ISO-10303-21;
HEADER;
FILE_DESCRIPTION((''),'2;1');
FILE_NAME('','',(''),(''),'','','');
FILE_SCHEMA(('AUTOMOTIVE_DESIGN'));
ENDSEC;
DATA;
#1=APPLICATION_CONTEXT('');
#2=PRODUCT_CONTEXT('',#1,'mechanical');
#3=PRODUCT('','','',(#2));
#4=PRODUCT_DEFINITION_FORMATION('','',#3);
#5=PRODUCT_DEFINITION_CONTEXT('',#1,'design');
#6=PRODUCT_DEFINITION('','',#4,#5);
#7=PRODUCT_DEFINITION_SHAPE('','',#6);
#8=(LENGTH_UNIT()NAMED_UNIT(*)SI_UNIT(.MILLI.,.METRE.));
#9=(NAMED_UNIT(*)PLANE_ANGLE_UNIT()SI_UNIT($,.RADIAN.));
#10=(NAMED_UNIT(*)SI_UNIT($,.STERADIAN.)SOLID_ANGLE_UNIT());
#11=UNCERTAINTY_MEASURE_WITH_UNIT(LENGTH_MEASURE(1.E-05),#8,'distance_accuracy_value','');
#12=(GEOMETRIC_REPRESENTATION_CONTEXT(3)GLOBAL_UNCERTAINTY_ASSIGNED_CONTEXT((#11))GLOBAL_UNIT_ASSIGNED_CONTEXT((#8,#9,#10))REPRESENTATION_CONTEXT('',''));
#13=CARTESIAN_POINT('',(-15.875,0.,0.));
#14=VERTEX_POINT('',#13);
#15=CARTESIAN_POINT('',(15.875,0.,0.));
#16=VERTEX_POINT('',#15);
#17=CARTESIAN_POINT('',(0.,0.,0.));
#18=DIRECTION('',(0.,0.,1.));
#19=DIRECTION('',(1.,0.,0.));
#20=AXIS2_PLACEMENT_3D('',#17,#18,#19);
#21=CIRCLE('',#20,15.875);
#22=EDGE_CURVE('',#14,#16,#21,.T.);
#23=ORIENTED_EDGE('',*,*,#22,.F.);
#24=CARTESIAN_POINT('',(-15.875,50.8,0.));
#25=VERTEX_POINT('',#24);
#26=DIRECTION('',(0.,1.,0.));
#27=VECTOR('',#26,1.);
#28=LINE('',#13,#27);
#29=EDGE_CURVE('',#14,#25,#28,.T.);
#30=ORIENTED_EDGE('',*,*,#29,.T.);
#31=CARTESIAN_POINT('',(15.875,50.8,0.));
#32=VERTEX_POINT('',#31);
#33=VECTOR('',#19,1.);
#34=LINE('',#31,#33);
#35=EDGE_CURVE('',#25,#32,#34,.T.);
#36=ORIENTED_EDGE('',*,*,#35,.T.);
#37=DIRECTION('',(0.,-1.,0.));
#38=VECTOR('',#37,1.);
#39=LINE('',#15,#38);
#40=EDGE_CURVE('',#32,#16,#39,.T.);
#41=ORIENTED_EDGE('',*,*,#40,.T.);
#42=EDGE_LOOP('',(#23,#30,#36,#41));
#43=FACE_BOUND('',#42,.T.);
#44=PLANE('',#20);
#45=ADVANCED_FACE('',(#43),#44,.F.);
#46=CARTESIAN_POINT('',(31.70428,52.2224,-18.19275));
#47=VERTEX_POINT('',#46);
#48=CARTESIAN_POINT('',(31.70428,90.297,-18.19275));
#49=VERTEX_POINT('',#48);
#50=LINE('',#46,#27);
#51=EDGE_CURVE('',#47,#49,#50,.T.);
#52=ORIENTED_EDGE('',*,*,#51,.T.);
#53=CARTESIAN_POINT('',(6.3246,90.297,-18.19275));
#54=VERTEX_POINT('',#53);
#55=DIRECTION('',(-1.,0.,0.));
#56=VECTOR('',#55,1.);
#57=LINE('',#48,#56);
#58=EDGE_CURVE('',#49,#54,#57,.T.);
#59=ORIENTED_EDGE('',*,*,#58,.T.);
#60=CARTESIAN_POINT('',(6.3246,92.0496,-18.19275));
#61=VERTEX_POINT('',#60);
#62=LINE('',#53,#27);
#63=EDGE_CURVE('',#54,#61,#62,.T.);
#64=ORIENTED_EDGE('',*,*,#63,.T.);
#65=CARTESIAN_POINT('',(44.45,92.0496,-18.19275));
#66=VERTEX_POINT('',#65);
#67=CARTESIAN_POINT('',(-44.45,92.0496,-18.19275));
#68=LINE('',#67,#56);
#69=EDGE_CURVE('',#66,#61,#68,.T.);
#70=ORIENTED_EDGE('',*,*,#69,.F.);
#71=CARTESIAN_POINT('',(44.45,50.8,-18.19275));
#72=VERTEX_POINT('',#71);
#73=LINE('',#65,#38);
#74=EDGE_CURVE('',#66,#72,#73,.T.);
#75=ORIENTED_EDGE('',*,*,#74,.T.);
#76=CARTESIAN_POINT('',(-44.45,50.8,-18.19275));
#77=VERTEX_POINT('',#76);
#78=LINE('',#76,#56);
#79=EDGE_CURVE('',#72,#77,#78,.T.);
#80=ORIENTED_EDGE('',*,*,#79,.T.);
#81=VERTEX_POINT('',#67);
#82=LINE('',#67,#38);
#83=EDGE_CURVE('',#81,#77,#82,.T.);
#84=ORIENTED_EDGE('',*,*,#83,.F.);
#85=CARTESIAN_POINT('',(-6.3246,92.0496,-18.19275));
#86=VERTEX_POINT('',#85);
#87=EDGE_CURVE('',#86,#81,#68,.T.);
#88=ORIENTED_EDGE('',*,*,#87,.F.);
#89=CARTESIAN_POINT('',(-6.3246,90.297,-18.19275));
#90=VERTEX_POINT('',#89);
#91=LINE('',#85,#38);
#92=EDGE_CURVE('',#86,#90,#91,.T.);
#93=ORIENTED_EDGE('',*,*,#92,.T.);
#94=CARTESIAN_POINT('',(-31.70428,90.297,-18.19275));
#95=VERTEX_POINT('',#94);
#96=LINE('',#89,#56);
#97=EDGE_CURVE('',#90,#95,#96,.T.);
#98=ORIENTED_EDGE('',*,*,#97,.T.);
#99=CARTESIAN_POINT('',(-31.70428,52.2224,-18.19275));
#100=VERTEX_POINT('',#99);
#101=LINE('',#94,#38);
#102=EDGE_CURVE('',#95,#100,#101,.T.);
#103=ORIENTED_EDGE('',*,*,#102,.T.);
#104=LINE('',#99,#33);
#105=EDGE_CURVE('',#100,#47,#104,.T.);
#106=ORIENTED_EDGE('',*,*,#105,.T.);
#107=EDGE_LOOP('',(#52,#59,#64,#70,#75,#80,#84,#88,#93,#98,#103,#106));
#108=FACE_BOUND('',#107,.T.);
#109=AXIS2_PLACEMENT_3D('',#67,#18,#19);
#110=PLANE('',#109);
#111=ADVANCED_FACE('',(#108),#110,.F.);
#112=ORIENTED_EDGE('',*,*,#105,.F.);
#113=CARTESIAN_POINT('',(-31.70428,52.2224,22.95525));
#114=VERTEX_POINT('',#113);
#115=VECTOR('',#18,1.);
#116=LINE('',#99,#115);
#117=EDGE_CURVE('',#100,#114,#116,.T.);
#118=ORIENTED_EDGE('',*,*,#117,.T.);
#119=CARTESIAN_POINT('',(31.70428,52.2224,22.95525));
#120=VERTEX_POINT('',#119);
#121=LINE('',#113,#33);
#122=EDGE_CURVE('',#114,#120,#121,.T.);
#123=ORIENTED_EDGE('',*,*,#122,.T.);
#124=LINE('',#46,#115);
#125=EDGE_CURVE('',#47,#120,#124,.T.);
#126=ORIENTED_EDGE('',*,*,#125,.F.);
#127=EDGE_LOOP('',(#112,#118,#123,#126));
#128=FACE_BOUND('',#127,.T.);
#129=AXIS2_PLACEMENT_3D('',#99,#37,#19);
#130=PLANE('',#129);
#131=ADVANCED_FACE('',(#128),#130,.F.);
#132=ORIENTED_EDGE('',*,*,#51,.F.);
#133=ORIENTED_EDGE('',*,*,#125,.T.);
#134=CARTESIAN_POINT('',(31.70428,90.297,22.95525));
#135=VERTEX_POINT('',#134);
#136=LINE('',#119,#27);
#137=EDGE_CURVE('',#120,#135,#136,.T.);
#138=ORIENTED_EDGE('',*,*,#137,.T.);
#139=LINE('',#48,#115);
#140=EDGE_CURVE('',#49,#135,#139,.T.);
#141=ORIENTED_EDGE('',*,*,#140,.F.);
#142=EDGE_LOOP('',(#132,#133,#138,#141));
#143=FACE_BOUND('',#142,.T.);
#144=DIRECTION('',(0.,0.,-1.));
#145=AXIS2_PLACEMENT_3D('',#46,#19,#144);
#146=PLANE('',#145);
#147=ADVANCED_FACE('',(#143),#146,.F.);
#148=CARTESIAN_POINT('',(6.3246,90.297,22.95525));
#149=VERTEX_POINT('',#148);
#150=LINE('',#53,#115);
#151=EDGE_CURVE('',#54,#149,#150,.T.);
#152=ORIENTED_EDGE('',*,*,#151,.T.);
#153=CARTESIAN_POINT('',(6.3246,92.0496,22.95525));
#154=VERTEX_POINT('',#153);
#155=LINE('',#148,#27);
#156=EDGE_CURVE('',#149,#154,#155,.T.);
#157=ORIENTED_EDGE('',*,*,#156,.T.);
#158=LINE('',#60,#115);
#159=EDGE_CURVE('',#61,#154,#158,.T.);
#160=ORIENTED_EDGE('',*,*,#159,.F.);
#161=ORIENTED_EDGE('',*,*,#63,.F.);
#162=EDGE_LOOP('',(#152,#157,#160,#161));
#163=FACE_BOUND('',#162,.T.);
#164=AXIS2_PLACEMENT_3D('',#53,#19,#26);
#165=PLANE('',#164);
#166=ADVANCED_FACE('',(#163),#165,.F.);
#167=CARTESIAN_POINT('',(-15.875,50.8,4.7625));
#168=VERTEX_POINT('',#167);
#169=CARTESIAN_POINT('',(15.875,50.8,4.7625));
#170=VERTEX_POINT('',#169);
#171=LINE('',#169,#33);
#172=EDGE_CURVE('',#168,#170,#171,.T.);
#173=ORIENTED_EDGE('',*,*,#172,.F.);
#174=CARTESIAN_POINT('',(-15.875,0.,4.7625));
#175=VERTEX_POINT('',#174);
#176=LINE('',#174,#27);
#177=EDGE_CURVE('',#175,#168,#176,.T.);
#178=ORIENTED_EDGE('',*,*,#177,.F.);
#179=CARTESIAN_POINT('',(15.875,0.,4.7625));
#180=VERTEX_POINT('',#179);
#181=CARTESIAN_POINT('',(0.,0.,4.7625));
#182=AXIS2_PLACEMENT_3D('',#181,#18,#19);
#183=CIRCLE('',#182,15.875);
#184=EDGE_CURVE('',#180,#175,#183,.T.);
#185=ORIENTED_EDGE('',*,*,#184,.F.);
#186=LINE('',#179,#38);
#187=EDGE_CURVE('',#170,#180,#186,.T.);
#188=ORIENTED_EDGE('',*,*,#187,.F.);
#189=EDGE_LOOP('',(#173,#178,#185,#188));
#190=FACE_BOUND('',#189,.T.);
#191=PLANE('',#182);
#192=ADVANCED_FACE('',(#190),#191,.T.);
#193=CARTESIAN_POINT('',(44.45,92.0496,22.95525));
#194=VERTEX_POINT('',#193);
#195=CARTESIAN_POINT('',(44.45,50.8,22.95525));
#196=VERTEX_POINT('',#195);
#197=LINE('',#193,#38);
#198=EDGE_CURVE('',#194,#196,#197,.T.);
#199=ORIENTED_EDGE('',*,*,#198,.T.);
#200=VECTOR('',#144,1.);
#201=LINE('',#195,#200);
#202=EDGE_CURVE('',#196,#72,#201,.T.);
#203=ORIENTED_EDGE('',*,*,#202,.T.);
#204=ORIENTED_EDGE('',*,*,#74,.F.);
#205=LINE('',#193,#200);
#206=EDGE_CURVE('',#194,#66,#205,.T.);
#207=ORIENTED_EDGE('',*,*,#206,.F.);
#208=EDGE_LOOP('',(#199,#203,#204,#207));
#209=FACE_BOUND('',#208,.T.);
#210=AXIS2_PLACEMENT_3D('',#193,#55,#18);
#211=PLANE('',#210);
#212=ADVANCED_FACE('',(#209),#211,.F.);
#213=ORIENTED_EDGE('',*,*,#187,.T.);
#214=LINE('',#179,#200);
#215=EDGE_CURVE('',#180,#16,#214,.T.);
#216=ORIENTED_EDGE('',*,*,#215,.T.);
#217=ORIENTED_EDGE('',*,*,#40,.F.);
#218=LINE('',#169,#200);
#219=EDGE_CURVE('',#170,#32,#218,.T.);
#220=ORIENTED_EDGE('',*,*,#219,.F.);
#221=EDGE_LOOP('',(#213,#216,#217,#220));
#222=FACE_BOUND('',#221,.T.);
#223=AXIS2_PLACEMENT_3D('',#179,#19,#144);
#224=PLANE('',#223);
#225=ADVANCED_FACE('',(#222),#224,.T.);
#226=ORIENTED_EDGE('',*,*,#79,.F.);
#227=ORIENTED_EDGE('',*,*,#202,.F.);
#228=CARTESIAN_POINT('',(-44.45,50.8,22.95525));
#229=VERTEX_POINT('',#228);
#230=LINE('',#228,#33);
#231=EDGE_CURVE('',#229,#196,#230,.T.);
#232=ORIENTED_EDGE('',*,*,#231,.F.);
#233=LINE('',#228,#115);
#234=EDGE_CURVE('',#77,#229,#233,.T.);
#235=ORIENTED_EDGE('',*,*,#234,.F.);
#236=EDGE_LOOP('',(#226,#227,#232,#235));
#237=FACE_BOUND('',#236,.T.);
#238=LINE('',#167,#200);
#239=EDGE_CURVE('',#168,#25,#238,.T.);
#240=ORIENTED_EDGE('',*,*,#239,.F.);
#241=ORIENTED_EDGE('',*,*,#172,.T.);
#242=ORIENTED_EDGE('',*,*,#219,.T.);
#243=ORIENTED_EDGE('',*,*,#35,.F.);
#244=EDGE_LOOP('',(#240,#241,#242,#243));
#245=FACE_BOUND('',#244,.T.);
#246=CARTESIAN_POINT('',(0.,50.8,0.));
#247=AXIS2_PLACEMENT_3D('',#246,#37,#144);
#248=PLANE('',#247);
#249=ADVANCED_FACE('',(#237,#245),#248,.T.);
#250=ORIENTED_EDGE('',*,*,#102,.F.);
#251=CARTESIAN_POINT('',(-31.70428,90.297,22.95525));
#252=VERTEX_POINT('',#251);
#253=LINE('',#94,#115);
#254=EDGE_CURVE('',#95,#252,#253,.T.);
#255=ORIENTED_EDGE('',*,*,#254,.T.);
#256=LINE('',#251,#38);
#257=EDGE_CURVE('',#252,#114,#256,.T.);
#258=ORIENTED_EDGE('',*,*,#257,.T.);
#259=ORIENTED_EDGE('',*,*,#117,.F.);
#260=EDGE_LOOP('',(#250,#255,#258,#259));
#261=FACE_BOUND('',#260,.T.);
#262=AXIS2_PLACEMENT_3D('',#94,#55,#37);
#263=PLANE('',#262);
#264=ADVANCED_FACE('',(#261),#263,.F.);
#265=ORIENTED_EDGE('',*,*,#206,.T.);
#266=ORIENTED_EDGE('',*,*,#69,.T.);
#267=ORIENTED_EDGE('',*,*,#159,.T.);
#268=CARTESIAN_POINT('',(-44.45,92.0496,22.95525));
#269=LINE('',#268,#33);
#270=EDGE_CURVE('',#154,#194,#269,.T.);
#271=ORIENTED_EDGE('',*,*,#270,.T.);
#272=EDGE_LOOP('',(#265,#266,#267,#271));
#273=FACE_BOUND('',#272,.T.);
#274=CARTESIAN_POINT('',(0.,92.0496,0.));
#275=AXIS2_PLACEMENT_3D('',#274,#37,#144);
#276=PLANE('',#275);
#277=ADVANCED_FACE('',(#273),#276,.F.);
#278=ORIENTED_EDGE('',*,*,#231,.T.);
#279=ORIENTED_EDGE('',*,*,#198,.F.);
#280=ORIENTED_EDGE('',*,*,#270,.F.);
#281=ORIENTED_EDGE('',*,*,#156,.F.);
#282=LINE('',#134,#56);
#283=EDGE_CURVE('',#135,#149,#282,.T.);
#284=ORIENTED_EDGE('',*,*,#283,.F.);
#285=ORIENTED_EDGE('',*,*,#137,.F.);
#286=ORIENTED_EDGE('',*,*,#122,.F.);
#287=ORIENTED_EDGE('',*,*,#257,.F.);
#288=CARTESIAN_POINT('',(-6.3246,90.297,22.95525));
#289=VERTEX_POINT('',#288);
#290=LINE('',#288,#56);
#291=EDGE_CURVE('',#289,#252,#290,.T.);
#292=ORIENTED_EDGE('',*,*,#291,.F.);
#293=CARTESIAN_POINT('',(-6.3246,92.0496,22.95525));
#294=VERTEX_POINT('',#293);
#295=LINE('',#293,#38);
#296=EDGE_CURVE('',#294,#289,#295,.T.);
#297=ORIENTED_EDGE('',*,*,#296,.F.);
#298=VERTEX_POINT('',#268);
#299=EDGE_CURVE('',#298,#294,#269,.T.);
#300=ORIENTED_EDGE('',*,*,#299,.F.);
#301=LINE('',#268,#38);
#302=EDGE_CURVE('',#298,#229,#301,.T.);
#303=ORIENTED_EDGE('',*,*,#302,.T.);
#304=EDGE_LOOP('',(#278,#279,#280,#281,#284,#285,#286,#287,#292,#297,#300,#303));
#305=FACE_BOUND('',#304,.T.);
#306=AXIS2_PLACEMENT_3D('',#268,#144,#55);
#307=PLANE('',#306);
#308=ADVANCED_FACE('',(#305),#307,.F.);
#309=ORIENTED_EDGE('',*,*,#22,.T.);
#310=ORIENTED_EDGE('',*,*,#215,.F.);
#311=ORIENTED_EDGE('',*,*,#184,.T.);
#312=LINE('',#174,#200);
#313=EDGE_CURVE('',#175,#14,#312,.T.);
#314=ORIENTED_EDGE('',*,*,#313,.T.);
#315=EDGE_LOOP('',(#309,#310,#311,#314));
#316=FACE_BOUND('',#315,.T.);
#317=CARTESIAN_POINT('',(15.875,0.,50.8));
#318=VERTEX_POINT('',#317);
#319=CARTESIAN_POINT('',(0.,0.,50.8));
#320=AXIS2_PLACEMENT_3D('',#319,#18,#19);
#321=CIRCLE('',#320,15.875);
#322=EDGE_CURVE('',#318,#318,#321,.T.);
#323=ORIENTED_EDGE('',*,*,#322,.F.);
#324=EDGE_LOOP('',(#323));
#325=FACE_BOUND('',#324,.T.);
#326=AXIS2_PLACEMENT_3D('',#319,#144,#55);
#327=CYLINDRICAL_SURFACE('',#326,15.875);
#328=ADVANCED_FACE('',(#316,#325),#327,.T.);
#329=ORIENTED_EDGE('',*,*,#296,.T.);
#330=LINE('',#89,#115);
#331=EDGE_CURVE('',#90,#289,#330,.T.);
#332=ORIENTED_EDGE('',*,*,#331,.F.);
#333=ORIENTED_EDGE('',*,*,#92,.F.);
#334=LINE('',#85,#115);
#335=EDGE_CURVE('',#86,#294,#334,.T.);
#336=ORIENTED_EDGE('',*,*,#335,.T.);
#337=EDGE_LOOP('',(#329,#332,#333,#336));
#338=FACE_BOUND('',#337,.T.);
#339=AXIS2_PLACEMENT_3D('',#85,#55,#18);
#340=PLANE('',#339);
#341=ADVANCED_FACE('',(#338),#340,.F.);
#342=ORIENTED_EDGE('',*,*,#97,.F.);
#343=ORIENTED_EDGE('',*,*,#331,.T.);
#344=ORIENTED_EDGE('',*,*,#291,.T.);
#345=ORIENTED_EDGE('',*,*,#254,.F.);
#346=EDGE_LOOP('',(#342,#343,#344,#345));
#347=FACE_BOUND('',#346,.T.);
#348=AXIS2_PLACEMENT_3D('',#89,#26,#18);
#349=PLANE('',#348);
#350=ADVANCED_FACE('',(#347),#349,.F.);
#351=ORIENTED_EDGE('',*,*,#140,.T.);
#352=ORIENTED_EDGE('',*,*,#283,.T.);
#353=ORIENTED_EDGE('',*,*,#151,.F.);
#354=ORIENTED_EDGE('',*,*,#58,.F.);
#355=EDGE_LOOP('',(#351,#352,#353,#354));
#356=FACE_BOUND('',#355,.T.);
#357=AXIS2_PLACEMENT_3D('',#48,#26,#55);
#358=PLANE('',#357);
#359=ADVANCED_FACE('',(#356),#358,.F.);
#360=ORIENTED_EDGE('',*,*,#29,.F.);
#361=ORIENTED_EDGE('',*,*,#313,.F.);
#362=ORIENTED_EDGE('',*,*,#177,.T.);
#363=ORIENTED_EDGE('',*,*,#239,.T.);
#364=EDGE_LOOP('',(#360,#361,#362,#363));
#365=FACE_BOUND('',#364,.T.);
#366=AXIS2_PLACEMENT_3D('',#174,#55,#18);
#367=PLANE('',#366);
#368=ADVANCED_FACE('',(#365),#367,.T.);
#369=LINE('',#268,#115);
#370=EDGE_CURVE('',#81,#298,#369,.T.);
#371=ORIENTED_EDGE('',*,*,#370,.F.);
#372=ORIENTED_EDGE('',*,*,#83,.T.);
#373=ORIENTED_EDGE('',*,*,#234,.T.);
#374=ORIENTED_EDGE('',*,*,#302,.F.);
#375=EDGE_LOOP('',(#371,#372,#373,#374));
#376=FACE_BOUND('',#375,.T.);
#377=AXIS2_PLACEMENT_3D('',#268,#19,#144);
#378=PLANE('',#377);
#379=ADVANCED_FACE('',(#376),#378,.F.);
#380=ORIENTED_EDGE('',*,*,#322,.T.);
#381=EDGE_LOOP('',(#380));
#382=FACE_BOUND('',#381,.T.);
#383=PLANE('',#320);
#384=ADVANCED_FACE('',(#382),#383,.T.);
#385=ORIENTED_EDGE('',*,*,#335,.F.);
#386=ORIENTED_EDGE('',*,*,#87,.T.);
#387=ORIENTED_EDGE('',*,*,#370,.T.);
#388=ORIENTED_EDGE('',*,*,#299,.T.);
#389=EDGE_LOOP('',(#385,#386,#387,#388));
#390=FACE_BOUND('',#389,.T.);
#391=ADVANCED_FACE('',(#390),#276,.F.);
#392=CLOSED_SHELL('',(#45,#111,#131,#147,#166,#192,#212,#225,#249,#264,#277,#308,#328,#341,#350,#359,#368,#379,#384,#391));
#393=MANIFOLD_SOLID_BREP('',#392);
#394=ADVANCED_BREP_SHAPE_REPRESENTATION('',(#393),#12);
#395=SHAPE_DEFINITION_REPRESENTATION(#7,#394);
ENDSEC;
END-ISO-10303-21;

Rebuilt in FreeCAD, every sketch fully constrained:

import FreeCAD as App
import Part
import Sketcher
Q = App.Units.Quantity


def add_polygon(sketch, points):
    """Adds a closed chain of lines whose ends are joined by coincident constraints."""
    first, n = sketch.GeometryCount, len(points)
    for a, b in zip(points, points[1:] + points[:1]):
        sketch.addGeometry(Part.LineSegment(App.Vector(*a, 0), App.Vector(*b, 0)), False)
    for i in range(n):
        sketch.addConstraint(Sketcher.Constraint("Coincident", first + i, 2, first + (i + 1) % n, 1))

doc = App.newDocument("Part")
body = doc.addObject("PartDesign::Body", "Body")

# Sketch on XY plane
sketch1 = doc.addObject("Sketcher::SketchObject", "Sketch")
body.addObject(sketch1)
sketch1.AttachmentSupport = (doc.XY_Plane, [""])
sketch1.MapMode = "FlatFace"
sketch1.addGeometry(Part.Circle(App.Vector(0, 0, 0), App.Vector(0, 0, 1), 15.875), False)
sketch1.addConstraint(Sketcher.Constraint("Coincident", 0, 3, -1, 1))
sketch1.addConstraint(Sketcher.Constraint("Diameter", 0, Q("1.25 in")))
pad1 = doc.addObject("PartDesign::Pad", "Pad")
body.addObject(pad1)
pad1.Profile = sketch1
pad1.Length = Q("2 in")

# Sketch on XY plane
sketch2 = doc.addObject("Sketcher::SketchObject", "Sketch001")
body.addObject(sketch2)
sketch2.AttachmentSupport = (doc.XY_Plane, [""])
sketch2.MapMode = "FlatFace"
add_polygon(sketch2, [(15.875, 50.8), (15.875, 0), (-15.875, 0), (-15.875, 50.8)])  # lines 0-3
sketch2.addConstraint(Sketcher.Constraint("Vertical", 0))
sketch2.addConstraint(Sketcher.Constraint("Horizontal", 1))
sketch2.addConstraint(Sketcher.Constraint("Vertical", 2))
sketch2.addConstraint(Sketcher.Constraint("Horizontal", 3))
sketch2.addConstraint(Sketcher.Constraint("Symmetric", 0, 2, 1, 2, -1, 1))
sketch2.addConstraint(Sketcher.Constraint("DistanceY", 0, 2, 0, 1, Q("2 in")))
sketch2.addConstraint(Sketcher.Constraint("DistanceX", 1, 2, 1, 1, Q("1.25 in")))
pad2 = doc.addObject("PartDesign::Pad", "Pad001")
body.addObject(pad2)
pad2.Profile = sketch2
pad2.Length = Q("0.1875 in")

# Sketch on XZ plane
sketch3 = doc.addObject("Sketcher::SketchObject", "Sketch002")
body.addObject(sketch3)
sketch3.AttachmentSupport = (doc.XZ_Plane, [""])
sketch3.MapMode = "FlatFace"
sketch3.AttachmentOffset = App.Placement(App.Vector(0, 0, -2 * 25.4), App.Rotation())
add_polygon(sketch3, [(-44.45, -18.19275), (-44.45, 22.95525), (44.45, 22.95525), (44.45, -18.19275)])  # lines 0-3
sketch3.addConstraint(Sketcher.Constraint("Vertical", 0))
sketch3.addConstraint(Sketcher.Constraint("Horizontal", 1))
sketch3.addConstraint(Sketcher.Constraint("Vertical", 2))
sketch3.addConstraint(Sketcher.Constraint("Horizontal", 3))
sketch3.addConstraint(Sketcher.Constraint("DistanceX", 1, 1, 1, 2, Q("3.5 in")))
sketch3.addConstraint(Sketcher.Constraint("DistanceY", 0, 1, 0, 2, Q("1.62 in")))
sketch3.addConstraint(Sketcher.Constraint("DistanceX", 0, 2, -1, 1, Q("1.75 in")))
sketch3.addConstraint(Sketcher.Constraint("DistanceY", -1, 1, 0, 2, Q("22.95525 mm")))
pad3 = doc.addObject("PartDesign::Pad", "Pad002")
body.addObject(pad3)
pad3.Profile = sketch3
pad3.Length = Q("1.624 in")
pad3.Reversed = True

# Sketch on XY plane
sketch4 = doc.addObject("Sketcher::SketchObject", "Sketch003")
body.addObject(sketch4)
sketch4.AttachmentSupport = (doc.XY_Plane, [""])
sketch4.MapMode = "FlatFace"
sketch4.AttachmentOffset = App.Placement(App.Vector(0, 0, 22.95525), App.Rotation())
add_polygon(sketch4, [(-6.3246, 92.0496), (-6.3246, 90.297), (-31.70428, 90.297), (-31.70428, 52.2224), (31.70428, 52.2224), (31.70428, 90.297), (6.3246, 90.297), (6.3246, 92.0496)])  # lines 0-7
sketch4.addConstraint(Sketcher.Constraint("Vertical", 0))
sketch4.addConstraint(Sketcher.Constraint("Horizontal", 1))
sketch4.addConstraint(Sketcher.Constraint("Vertical", 2))
sketch4.addConstraint(Sketcher.Constraint("Horizontal", 3))
sketch4.addConstraint(Sketcher.Constraint("Vertical", 4))
sketch4.addConstraint(Sketcher.Constraint("Horizontal", 5))
sketch4.addConstraint(Sketcher.Constraint("Vertical", 6))
sketch4.addConstraint(Sketcher.Constraint("Horizontal", 7))
sketch4.addConstraint(Sketcher.Constraint("Symmetric", 1, 2, 4, 2, -2))
sketch4.addConstraint(Sketcher.Constraint("Equal", 1, 5))
sketch4.addConstraint(Sketcher.Constraint("DistanceX", 7, 2, 7, 1, Q("0.498 in")))
sketch4.addConstraint(Sketcher.Constraint("DistanceY", 0, 2, 0, 1, Q("0.069 in")))
sketch4.addConstraint(Sketcher.Constraint("DistanceY", 2, 2, 2, 1, Q("1.499 in")))
sketch4.addConstraint(Sketcher.Constraint("DistanceX", 1, 2, 1, 1, Q("0.9992 in")))
sketch4.addConstraint(Sketcher.Constraint("DistanceY", -1, 1, 0, 2, Q("3.555 in")))
pocket1 = doc.addObject("PartDesign::Pocket", "Pocket")
body.addObject(pocket1)
pocket1.Profile = sketch4
pocket1.Type = "ThroughAll"

doc.recompute()
